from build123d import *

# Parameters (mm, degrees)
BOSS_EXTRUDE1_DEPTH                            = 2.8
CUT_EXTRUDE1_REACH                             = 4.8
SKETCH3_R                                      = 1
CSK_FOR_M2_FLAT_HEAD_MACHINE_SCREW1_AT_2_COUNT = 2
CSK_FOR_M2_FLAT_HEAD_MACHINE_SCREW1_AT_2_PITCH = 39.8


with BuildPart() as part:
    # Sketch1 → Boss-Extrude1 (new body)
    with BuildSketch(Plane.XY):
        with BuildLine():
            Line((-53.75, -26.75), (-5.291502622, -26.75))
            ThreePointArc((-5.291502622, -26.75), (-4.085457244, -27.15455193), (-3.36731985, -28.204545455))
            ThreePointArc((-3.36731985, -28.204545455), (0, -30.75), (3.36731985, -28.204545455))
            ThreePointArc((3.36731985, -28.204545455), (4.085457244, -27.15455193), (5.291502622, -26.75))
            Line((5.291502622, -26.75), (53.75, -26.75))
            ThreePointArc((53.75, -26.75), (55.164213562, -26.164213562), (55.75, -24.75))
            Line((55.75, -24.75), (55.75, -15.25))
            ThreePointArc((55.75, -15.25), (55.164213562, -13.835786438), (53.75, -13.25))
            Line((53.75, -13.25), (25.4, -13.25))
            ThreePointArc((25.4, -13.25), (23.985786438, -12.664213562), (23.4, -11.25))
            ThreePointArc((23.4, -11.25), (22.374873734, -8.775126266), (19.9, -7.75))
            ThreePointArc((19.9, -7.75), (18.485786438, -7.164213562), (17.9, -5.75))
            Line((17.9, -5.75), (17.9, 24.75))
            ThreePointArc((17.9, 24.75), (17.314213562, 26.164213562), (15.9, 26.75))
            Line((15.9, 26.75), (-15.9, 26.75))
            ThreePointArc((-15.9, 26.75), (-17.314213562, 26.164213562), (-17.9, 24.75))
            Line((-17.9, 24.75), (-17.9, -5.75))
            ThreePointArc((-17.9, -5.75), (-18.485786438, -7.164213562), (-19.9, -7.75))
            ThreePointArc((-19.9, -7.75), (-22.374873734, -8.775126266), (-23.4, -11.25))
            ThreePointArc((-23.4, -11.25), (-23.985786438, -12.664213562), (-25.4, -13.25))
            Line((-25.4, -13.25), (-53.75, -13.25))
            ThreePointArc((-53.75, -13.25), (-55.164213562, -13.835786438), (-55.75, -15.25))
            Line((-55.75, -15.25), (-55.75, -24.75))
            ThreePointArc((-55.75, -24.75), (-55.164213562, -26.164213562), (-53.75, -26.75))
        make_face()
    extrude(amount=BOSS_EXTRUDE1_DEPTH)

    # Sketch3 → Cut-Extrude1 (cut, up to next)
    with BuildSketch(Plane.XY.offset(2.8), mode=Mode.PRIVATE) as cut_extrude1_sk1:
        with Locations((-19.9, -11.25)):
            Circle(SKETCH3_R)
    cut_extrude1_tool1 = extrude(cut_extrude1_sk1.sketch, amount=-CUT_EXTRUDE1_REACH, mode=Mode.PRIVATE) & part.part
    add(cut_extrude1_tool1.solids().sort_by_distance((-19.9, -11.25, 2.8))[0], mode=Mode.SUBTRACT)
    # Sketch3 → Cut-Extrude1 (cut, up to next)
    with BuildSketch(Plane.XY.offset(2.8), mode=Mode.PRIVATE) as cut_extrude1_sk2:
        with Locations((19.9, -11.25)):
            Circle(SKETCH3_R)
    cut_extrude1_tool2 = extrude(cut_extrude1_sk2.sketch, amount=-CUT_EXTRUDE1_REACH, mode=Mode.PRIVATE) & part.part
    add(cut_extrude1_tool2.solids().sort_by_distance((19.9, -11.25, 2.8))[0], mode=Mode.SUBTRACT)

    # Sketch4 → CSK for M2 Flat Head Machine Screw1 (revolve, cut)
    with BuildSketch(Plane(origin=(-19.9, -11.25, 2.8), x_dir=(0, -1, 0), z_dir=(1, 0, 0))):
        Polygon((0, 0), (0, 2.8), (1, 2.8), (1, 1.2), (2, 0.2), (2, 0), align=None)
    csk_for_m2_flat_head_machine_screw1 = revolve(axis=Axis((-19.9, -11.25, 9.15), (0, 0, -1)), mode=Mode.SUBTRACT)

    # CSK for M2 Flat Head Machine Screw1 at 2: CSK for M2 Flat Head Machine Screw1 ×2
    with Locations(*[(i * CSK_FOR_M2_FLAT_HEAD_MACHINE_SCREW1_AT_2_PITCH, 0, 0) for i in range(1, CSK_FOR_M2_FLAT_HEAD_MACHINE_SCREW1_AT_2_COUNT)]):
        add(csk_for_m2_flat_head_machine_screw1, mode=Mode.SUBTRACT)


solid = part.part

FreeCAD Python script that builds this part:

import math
import FreeCAD as App
import Part
import Sketcher
Q = App.Units.Quantity


def add_polygon(sketch, points):
    """Adds a closed chain of lines whose ends are joined by coincident constraints."""
    first, n = sketch.GeometryCount, len(points)
    for a, b in zip(points, points[1:] + points[:1]):
        sketch.addGeometry(Part.LineSegment(App.Vector(*a, 0), App.Vector(*b, 0)), False)
    for i in range(n):
        sketch.addConstraint(Sketcher.Constraint("Coincident", first + i, 2, first + (i + 1) % n, 1))

doc = App.newDocument("Part")
params = doc.addObject("Spreadsheet::Sheet", "Params")
for row, (alias, value) in enumerate([
    ("sketch1_radius", "2 mm"),
    ("sketch1_radius2", "3.5 mm"),
    ("sketch1_width", "31.8 mm"),
    ("sketch1_height", "9.5 mm"),
    ("sketch1_height2", "30.5 mm"),
    ("pad1_length", "2.8 mm"),
    ("sketch2_diameter", "2 mm"),
    ("sketch3_diameter", "2 mm"),
    ("sketch4_width", "2 mm"),
    ("sketch4_width2", "1 mm"),
    ("sketch4_height", "2.8 mm"),
    ("sketch4_height2", "0.2 mm"),
    ("groove_angle", "360 deg"),
    ("linearpattern_pitch", "39.8 mm"),
], start=1):
    params.set(f"A{row}", alias)
    params.set(f"B{row}", "=" + value)
    params.setAlias(f"B{row}", alias)

body = doc.addObject("PartDesign::Body", "Body")

sketch1 = body.newObject("Sketcher::SketchObject", "Sketch")
sketch1.AttachmentSupport = (doc.getObject("XY_Plane"), [""])
sketch1.MapMode = "FlatFace"
sketch1.addGeometry([
    Part.LineSegment(App.Vector(-53.8, -26.8, 0), App.Vector(-5.3, -26.8, 0)),
    Part.ArcOfCircle(Part.Circle(App.Vector(-5.3, -28.8, 0), App.Vector(0, 0, 1), 2), math.radians(16), math.radians(90)),
    Part.ArcOfCircle(Part.Circle(App.Vector(0, -27.2, 0), App.Vector(0, 0, 1), 3.5), math.radians(-164), math.radians(-16)),
    Part.ArcOfCircle(Part.Circle(App.Vector(5.3, -28.8, 0), App.Vector(0, 0, 1), 2), math.radians(90), math.radians(164)),
    Part.LineSegment(App.Vector(5.3, -26.8, 0), App.Vector(53.8, -26.8, 0)),
    Part.ArcOfCircle(Part.Circle(App.Vector(53.7, -24.7, 0), App.Vector(0, 0, 1), 2), math.radians(-90), math.radians(0)),
    Part.LineSegment(App.Vector(55.8, -24.8, 0), App.Vector(55.8, -15.2, 0)),
    Part.ArcOfCircle(Part.Circle(App.Vector(53.7, -15.3, 0), App.Vector(0, 0, 1), 2), math.radians(0), math.radians(90)),
    Part.LineSegment(App.Vector(53.8, -13.2, 0), App.Vector(25.4, -13.2, 0)),
    Part.ArcOfCircle(Part.Circle(App.Vector(25.4, -11.2, 0), App.Vector(0, 0, 1), 2), math.radians(-180), math.radians(-90)),
    Part.ArcOfCircle(Part.Circle(App.Vector(19.9, -11.3, 0), App.Vector(0, 0, 1), 3.5), math.radians(0), math.radians(90)),
    Part.ArcOfCircle(Part.Circle(App.Vector(19.9, -5.7, 0), App.Vector(0, 0, 1), 2), math.radians(-180), math.radians(-90)),
    Part.LineSegment(App.Vector(17.9, -5.8, 0), App.Vector(17.9, 24.8, 0)),
    Part.ArcOfCircle(Part.Circle(App.Vector(15.9, 24.7, 0), App.Vector(0, 0, 1), 2), math.radians(0), math.radians(90)),
    Part.LineSegment(App.Vector(15.9, 26.8, 0), App.Vector(-15.9, 26.8, 0)),
    Part.ArcOfCircle(Part.Circle(App.Vector(-15.9, 24.7, 0), App.Vector(0, 0, 1), 2), math.radians(90), math.radians(180)),
    Part.LineSegment(App.Vector(-17.9, 24.8, 0), App.Vector(-17.9, -5.8, 0)),
    Part.ArcOfCircle(Part.Circle(App.Vector(-19.9, -5.7, 0), App.Vector(0, 0, 1), 2), math.radians(-90), math.radians(0)),
    Part.ArcOfCircle(Part.Circle(App.Vector(-19.9, -11.3, 0), App.Vector(0, 0, 1), 3.5), math.radians(90), math.radians(180)),
    Part.ArcOfCircle(Part.Circle(App.Vector(-25.4, -11.2, 0), App.Vector(0, 0, 1), 2), math.radians(-90), math.radians(0)),
    Part.LineSegment(App.Vector(-25.4, -13.2, 0), App.Vector(-53.8, -13.2, 0)),
    Part.ArcOfCircle(Part.Circle(App.Vector(-53.7, -15.3, 0), App.Vector(0, 0, 1), 2), math.radians(90), math.radians(180)),
    Part.LineSegment(App.Vector(-55.8, -15.2, 0), App.Vector(-55.8, -24.8, 0)),
    Part.ArcOfCircle(Part.Circle(App.Vector(-53.7, -24.7, 0), App.Vector(0, 0, 1), 2), math.radians(-180), math.radians(-90)),
], False)
sketch1.addConstraint([
    Sketcher.Constraint("Tangent", 0, 2, 1, 2),
    Sketcher.Constraint("Tangent", 1, 1, 2, 1),
    Sketcher.Constraint("Tangent", 2, 2, 3, 2),
    Sketcher.Constraint("Tangent", 3, 1, 4, 1),
    Sketcher.Constraint("Tangent", 4, 2, 5, 1),
    Sketcher.Constraint("Tangent", 5, 2, 6, 1),
    Sketcher.Constraint("Tangent", 6, 2, 7, 1),
    Sketcher.Constraint("Tangent", 7, 2, 8, 1),
    Sketcher.Constraint("Tangent", 8, 2, 9, 2),
    Sketcher.Constraint("Tangent", 9, 1, 10, 1),
    Sketcher.Constraint("Tangent", 10, 2, 11, 2),
    Sketcher.Constraint("Tangent", 11, 1, 12, 1),
    Sketcher.Constraint("Tangent", 12, 2, 13, 1),
    Sketcher.Constraint("Tangent", 13, 2, 14, 1),
    Sketcher.Constraint("Tangent", 14, 2, 15, 1),
    Sketcher.Constraint("Tangent", 15, 2, 16, 1),
    Sketcher.Constraint("Tangent", 16, 2, 17, 2),
    Sketcher.Constraint("Tangent", 17, 1, 18, 1),
    Sketcher.Constraint("Tangent", 18, 2, 19, 2),
    Sketcher.Constraint("Tangent", 19, 1, 20, 1),
    Sketcher.Constraint("Tangent", 20, 2, 21, 1),
    Sketcher.Constraint("Tangent", 21, 2, 22, 1),
    Sketcher.Constraint("Tangent", 22, 2, 23, 1),
    Sketcher.Constraint("Tangent", 23, 2, 0, 1),
    Sketcher.Constraint("Horizontal", 0),
    Sketcher.Constraint("Horizontal", 4),
    Sketcher.Constraint("Vertical", 6),
    Sketcher.Constraint("Horizontal", 8),
    Sketcher.Constraint("Vertical", 12),
    Sketcher.Constraint("Horizontal", 14),
    Sketcher.Constraint("Vertical", 16),
    Sketcher.Constraint("Horizontal", 20),
    Sketcher.Constraint("Vertical", 22),
    Sketcher.Constraint("Equal", 1, 3),
    Sketcher.Constraint("Equal", 3, 5),
    Sketcher.Constraint("Equal", 5, 7),
    Sketcher.Constraint("Equal", 7, 9),
    Sketcher.Constraint("Equal", 2, 10),
    Sketcher.Constraint("Equal", 9, 11),
    Sketcher.Constraint("Equal", 11, 13),
    Sketcher.Constraint("Equal", 13, 15),
    Sketcher.Constraint("Equal", 15, 17),
    Sketcher.Constraint("Equal", 10, 18),
    Sketcher.Constraint("Equal", 17, 19),
    Sketcher.Constraint("Equal", 19, 21),
    Sketcher.Constraint("Equal", 21, 23),
    Sketcher.Constraint("Symmetric", 1, 3, 3, 3, -2),
    Sketcher.Constraint("Symmetric", 11, 3, 17, 3, -2),
    Sketcher.Constraint("Symmetric", 9, 3, 19, 3, -2),
    Sketcher.Constraint("Horizontal", 9, 3, 10, 3),
    Sketcher.Constraint("Vertical", 10, 3, 11, 3),
    Sketcher.Constraint("Equal", 0, 4),
    Sketcher.Constraint("Radius", 1, 2.0),
    Sketcher.Constraint("Radius", 2, 3.5),
    Sketcher.Constraint("DistanceX", 14, 2, 14, 1, 31.8),
    Sketcher.Constraint("DistanceY", 6, 1, 6, 2, 9.5),
    Sketcher.Constraint("DistanceY", 12, 1, 12, 2, 30.5),
    Sketcher.Constraint("DistanceY", 2, 3, 7, 3, 12.0),
    Sketcher.Constraint("DistanceX", 8, 2, 8, 1, 28.35),
    Sketcher.Constraint("DistanceY", 1, 3, -1, 1, 28.75),
])
sketch1.setExpression("Constraints[52]", "Params.sketch1_radius")
sketch1.setExpression("Constraints[53]", "Params.sketch1_radius2")
sketch1.setExpression("Constraints[54]", "Params.sketch1_width")
sketch1.setExpression("Constraints[55]", "Params.sketch1_height")
sketch1.setExpression("Constraints[56]", "Params.sketch1_height2")
pad1 = body.newObject("PartDesign::Pad", "Pad")
pad1.Profile = sketch1
pad1.setExpression("Length", "Params.pad1_length")

sketch2 = body.newObject("Sketcher::SketchObject", "Sketch001")
sketch2.AttachmentSupport = (doc.getObject("XY_Plane"), [""])
sketch2.MapMode = "FlatFace"
sketch2.AttachmentOffset = App.Placement(App.Vector(0, 0, 2.8), App.Rotation())
sketch2.addGeometry(Part.Circle(App.Vector(-19.9, -11.2, 0), App.Vector(0, 0, 1), 1), False)
sketch2.addConstraint([
    Sketcher.Constraint("Diameter", 0, 2.0),
    Sketcher.Constraint("DistanceX", 0, 3, -1, 1, 19.9),
    Sketcher.Constraint("DistanceY", 0, 3, -1, 1, 11.25),
])
sketch2.setExpression("Constraints[0]", "Params.sketch2_diameter")
pocket1 = body.newObject("PartDesign::Pocket", "Pocket")
pocket1.Profile = sketch2
pocket1.Type = "UpToFirst"

sketch3 = body.newObject("Sketcher::SketchObject", "Sketch002")
sketch3.AttachmentSupport = (doc.getObject("XY_Plane"), [""])
sketch3.MapMode = "FlatFace"
sketch3.AttachmentOffset = App.Placement(App.Vector(0, 0, 2.8), App.Rotation())
sketch3.addGeometry(Part.Circle(App.Vector(19.9, -11.2, 0), App.Vector(0, 0, 1), 1), False)
sketch3.addConstraint([
    Sketcher.Constraint("Diameter", 0, 2.0),
    Sketcher.Constraint("DistanceX", -1, 1, 0, 3, 19.9),
    Sketcher.Constraint("DistanceY", 0, 3, -1, 1, 11.25),
])
sketch3.setExpression("Constraints[0]", "Params.sketch3_diameter")
pocket2 = body.newObject("PartDesign::Pocket", "Pocket001")
pocket2.Profile = sketch3
pocket2.Type = "UpToFirst"

sketch4 = body.newObject("Sketcher::SketchObject", "Sketch003")
sketch4.AttachmentSupport = (doc.getObject("YZ_Plane"), [""])
sketch4.MapMode = "FlatFace"
sketch4.AttachmentOffset = App.Placement(App.Vector(0, 0, -19.9), App.Rotation())
add_polygon(sketch4, [(-11.25, 0), (-11.25, 2.8), (-13.25, 2.8), (-13.25, 2.6), (-12.25, 1.6), (-12.25, 0)])
sketch4.addGeometry(Part.LineSegment(App.Vector(-11.25, 2.8, 0), App.Vector(-11.25, 0, 0)), True)
sketch4.addConstraint([
    Sketcher.Constraint("Vertical", 0),
    Sketcher.Constraint("Horizontal", 1),
    Sketcher.Constraint("Vertical", 2),
    Sketcher.Constraint("Vertical", 4),
    Sketcher.Constraint("Horizontal", 5),
    Sketcher.Constraint("Vertical", 6),
    Sketcher.Constraint("Coincident", 6, 1, 0, 2),
    Sketcher.Constraint("PointOnObject", 4, 2, -1),
    Sketcher.Constraint("PointOnObject", 6, 2, -1),
    Sketcher.Constraint("DistanceX", 1, 2, 1, 1, 2.0),
    Sketcher.Constraint("DistanceX", 5, 1, 5, 2, 1.0),
    Sketcher.Constraint("Angle", 3, Q("-45 deg")),
    Sketcher.Constraint("DistanceY", 0, 1, 0, 2, 2.8),
    Sketcher.Constraint("DistanceY", 2, 2, 2, 1, 0.2),
    Sketcher.Constraint("DistanceX", 0, 2, -1, 1, 11.25),
])
sketch4.setExpression("Constraints[15]", "Params.sketch4_width")
sketch4.setExpression("Constraints[16]", "Params.sketch4_width2")
sketch4.setExpression("Constraints[18]", "Params.sketch4_height")
sketch4.setExpression("Constraints[19]", "Params.sketch4_height2")
groove = body.newObject("PartDesign::Groove", "Groove")
groove.Profile = sketch4
groove.ReferenceAxis = (sketch4, ["Axis0"])
groove.setExpression("Angle", "Params.groove_angle")
doc.recompute()

linearpattern = body.newObject("PartDesign::LinearPattern", "LinearPattern")
linearpattern.Originals = [groove]
linearpattern.Direction = (doc.getObject("X_Axis"), [""])
linearpattern.Mode = "offset"
linearpattern.setExpression("Offset", "Params.linearpattern_pitch")
linearpattern.Occurrences = 2
body.Tip = linearpattern

doc.recompute()
